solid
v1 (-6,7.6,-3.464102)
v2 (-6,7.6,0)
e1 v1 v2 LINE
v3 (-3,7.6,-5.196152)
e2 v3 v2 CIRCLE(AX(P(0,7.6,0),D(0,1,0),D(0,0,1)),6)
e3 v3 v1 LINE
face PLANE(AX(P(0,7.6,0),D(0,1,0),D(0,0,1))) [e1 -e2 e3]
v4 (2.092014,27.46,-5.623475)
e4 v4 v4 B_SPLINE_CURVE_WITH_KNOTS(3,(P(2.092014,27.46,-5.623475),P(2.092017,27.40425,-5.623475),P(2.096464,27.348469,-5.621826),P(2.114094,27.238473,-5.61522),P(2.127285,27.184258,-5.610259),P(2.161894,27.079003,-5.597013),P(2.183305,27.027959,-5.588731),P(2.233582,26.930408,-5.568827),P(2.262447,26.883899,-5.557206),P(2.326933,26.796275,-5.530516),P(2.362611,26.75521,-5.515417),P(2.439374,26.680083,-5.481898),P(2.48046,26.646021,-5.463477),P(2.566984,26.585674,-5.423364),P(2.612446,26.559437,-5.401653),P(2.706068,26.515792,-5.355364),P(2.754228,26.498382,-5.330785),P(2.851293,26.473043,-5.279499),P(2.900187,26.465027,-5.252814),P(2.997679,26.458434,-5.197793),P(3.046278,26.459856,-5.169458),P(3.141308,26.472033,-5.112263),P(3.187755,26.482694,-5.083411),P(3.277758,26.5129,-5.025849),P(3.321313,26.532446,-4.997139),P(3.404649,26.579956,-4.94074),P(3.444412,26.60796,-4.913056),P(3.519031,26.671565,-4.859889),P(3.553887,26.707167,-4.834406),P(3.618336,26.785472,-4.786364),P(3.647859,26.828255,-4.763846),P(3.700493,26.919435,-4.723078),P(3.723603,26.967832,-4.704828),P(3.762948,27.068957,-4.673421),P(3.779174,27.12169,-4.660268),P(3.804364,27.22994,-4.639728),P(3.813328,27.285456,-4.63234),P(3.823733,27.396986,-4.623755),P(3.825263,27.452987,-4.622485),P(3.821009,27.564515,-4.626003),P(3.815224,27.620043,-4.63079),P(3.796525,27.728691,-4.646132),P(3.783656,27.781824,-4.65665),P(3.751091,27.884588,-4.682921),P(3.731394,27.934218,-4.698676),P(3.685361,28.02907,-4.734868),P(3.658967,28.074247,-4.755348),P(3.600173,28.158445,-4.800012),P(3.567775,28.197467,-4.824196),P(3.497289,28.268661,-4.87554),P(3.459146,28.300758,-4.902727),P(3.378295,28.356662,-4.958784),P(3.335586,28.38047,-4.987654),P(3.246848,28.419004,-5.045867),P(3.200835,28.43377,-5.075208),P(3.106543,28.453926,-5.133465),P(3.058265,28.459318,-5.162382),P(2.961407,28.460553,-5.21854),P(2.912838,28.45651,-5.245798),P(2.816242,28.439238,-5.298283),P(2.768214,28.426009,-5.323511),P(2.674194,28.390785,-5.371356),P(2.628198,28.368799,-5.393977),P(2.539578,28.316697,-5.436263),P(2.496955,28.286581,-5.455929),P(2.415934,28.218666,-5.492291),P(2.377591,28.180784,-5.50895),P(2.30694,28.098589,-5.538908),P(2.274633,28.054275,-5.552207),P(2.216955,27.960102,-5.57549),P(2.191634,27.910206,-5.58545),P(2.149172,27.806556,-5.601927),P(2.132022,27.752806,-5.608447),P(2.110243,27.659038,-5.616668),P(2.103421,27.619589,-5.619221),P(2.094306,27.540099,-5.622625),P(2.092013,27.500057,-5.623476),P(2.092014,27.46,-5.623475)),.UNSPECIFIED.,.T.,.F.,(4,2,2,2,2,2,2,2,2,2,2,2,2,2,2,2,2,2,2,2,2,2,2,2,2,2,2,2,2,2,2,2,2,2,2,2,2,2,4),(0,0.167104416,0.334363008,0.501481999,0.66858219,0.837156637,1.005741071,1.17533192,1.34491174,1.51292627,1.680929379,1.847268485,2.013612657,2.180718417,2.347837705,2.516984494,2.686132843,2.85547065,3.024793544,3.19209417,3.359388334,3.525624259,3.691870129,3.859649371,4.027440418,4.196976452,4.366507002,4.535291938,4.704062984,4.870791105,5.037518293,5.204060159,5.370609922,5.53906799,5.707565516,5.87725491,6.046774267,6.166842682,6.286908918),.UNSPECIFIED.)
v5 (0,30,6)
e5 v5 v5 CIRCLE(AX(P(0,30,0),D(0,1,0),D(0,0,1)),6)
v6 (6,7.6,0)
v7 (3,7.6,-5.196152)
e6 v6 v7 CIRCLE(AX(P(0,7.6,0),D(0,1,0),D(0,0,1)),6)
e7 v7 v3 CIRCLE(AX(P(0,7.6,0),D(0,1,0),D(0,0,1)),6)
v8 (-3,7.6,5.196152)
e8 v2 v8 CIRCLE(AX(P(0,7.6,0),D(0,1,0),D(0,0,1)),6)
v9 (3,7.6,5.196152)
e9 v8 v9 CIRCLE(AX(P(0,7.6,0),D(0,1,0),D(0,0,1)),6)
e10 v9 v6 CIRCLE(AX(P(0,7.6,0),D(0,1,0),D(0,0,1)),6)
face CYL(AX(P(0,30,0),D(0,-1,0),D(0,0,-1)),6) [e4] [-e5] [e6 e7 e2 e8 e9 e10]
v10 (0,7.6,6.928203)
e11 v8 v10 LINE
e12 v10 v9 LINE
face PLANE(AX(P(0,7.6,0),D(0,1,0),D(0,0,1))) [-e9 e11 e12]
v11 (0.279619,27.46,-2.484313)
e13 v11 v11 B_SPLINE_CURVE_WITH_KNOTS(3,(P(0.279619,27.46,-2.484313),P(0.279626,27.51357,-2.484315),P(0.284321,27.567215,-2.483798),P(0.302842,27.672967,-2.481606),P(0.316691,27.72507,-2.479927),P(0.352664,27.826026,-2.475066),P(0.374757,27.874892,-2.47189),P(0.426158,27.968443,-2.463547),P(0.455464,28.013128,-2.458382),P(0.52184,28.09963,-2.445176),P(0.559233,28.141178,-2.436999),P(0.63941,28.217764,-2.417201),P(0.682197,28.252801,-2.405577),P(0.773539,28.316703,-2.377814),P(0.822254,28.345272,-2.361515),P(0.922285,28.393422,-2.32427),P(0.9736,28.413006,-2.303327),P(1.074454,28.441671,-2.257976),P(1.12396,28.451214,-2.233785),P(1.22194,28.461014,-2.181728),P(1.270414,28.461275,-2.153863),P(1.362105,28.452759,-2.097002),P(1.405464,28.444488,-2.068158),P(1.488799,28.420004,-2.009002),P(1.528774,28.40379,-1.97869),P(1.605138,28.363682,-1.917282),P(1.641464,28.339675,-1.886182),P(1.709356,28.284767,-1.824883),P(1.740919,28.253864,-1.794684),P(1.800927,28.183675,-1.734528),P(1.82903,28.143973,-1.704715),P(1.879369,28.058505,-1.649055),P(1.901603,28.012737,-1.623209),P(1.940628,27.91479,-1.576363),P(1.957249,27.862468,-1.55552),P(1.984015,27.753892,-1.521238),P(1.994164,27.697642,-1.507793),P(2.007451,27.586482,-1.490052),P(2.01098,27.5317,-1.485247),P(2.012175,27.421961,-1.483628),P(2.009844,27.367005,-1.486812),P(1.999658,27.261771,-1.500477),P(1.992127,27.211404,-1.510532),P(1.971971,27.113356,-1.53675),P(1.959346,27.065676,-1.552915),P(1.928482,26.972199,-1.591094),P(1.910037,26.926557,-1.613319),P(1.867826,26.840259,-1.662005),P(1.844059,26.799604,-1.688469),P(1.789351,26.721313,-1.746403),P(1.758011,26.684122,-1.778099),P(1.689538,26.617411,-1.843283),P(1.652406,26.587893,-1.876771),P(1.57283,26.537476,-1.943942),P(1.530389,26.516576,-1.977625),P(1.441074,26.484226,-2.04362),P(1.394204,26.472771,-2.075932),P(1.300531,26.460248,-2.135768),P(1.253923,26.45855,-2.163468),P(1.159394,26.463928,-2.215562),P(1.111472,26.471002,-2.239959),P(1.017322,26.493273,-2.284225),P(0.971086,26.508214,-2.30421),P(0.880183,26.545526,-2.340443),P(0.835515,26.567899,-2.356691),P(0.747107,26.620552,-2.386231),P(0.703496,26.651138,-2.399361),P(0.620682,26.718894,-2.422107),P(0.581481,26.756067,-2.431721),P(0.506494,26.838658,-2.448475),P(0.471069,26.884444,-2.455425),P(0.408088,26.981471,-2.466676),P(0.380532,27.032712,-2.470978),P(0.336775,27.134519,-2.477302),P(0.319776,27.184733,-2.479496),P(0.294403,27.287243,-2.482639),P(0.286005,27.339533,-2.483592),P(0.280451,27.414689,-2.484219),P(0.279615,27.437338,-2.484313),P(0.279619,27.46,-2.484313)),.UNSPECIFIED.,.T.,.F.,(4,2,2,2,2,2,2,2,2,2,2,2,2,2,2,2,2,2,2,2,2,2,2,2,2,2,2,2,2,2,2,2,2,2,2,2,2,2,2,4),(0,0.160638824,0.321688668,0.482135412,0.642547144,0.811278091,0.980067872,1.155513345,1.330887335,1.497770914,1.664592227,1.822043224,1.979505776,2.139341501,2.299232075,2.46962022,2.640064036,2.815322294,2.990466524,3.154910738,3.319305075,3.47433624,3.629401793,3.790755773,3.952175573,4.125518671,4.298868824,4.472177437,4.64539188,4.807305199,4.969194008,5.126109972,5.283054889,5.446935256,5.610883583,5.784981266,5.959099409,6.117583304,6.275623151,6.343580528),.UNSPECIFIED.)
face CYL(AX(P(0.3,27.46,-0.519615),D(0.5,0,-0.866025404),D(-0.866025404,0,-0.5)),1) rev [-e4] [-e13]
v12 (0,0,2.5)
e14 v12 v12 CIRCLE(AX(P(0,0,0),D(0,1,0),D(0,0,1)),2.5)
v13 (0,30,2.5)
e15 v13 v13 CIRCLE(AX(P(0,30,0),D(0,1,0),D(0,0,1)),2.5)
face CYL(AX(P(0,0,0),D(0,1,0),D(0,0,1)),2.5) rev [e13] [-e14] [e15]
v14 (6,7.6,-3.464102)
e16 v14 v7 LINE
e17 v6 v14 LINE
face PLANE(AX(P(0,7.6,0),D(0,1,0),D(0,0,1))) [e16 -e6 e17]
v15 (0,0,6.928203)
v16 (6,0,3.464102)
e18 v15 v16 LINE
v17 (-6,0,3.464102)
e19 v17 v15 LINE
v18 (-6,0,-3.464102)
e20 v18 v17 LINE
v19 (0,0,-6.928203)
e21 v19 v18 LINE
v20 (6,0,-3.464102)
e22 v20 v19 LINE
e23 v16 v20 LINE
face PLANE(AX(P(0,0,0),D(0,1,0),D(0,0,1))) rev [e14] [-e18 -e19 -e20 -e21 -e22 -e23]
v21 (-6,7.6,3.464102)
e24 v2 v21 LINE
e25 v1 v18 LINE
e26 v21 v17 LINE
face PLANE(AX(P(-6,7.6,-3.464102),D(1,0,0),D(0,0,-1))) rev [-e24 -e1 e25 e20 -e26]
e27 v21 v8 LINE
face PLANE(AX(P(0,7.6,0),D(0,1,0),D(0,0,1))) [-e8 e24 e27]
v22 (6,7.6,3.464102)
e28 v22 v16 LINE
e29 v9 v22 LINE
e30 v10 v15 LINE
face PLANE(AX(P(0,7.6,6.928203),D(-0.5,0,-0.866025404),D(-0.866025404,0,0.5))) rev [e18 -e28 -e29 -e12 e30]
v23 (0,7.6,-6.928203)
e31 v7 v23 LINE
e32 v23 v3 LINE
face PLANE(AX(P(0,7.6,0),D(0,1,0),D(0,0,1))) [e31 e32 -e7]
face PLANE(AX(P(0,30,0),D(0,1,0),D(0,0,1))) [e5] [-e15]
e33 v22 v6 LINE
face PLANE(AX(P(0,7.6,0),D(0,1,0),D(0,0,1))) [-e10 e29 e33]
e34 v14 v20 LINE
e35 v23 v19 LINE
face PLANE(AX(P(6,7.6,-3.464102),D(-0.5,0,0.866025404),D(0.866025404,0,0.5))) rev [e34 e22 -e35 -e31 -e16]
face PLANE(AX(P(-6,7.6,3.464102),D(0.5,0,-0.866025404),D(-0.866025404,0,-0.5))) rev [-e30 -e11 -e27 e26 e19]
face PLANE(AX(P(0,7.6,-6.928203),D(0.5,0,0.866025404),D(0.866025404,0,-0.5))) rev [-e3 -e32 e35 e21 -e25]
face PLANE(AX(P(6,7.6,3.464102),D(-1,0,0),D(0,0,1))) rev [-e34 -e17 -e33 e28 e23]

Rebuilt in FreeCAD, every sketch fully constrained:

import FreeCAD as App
import Part
import Sketcher
Q = App.Units.Quantity


def add_polygon(sketch, points):
    """Adds a closed chain of lines whose ends are joined by coincident constraints."""
    first, n = sketch.GeometryCount, len(points)
    for a, b in zip(points, points[1:] + points[:1]):
        sketch.addGeometry(Part.LineSegment(App.Vector(*a, 0), App.Vector(*b, 0)), False)
    for i in range(n):
        sketch.addConstraint(Sketcher.Constraint("Coincident", first + i, 2, first + (i + 1) % n, 1))

doc = App.newDocument("Part")
body = doc.addObject("PartDesign::Body", "Body")

# Sketch on XZ plane
sketch1 = doc.addObject("Sketcher::SketchObject", "Sketch")
body.addObject(sketch1)
sketch1.AttachmentSupport = (doc.XZ_Plane, [""])
sketch1.MapMode = "FlatFace"
add_polygon(sketch1, [(0, 7), (6, 3), (6, -3), (0, -7), (-6, -3), (-6, 3)])  # lines 0-5
sketch1.addConstraint([
    Sketcher.Constraint("Vertical", 1),
    Sketcher.Constraint("Vertical", 4),
    Sketcher.Constraint("Symmetric", 0, 2, 3, 2, -1, 1),
    Sketcher.Constraint("Symmetric", 2, 2, 5, 2, -1, 1),
    Sketcher.Constraint("PointOnObject", 2, 2, -2),
    Sketcher.Constraint("Parallel", 2, 5),
    Sketcher.Constraint("Horizontal", 1, 2, 3, 2),
    Sketcher.Constraint("Angle", 0, Q("-30 deg")),
    Sketcher.Constraint("DistanceX", -1, 1, 0, 2, Q("6 mm")),
    Sketcher.Constraint("DistanceY", -1, 1, 0, 2, Q("3.464102 mm")),
])
pad1 = doc.addObject("PartDesign::Pad", "Pad")
body.addObject(pad1)
pad1.Profile = sketch1
pad1.Length = 7.6
pad1.Reversed = True

# Sketch on XZ plane
sketch2 = doc.addObject("Sketcher::SketchObject", "Sketch001")
body.addObject(sketch2)
sketch2.AttachmentSupport = (doc.XZ_Plane, [""])
sketch2.MapMode = "FlatFace"
sketch2.AttachmentOffset = App.Placement(App.Vector(0, 0, -7.6), App.Rotation())
sketch2.addGeometry(Part.Circle(App.Vector(0, 0, 0), App.Vector(0, 0, 1), 6), False)
sketch2.addConstraint([
    Sketcher.Constraint("Coincident", 0, 3, -1, 1),
    Sketcher.Constraint("Diameter", 0, Q("12 mm")),
])
pad2 = doc.addObject("PartDesign::Pad", "Pad001")
body.addObject(pad2)
pad2.Profile = sketch2
pad2.Length = 22.4
pad2.Reversed = True

# Sketch on XZ plane
sketch3 = doc.addObject("Sketcher::SketchObject", "Sketch002")
body.addObject(sketch3)
sketch3.AttachmentSupport = (doc.XZ_Plane, [""])
sketch3.MapMode = "FlatFace"
sketch3.AttachmentOffset = App.Placement(App.Vector(0, 0, -30), App.Rotation())
sketch3.addGeometry(Part.Circle(App.Vector(0, 0, 0), App.Vector(0, 0, 1), 2.5), False)
sketch3.addConstraint([
    Sketcher.Constraint("Coincident", 0, 3, -1, 1),
    Sketcher.Constraint("Diameter", 0, Q("5 mm")),
])
pocket1 = doc.addObject("PartDesign::Pocket", "Pocket")
body.addObject(pocket1)
pocket1.Profile = sketch3
pocket1.Type = "ThroughAll"
pocket1.Reversed = True

# Sketch on an angled plane
sketch4 = doc.addObject("Sketcher::SketchObject", "Sketch003")
body.addObject(sketch4)
sketch4.Placement = App.Placement(App.Vector(8, 0, -13.856406), App.Rotation(App.Vector(-0.866025404, 0, -0.5), App.Vector(0, 1, 0), App.Vector(0.5, 0, -0.866025404), "ZXY"))
sketch4.addGeometry(Part.Circle(App.Vector(0, 27.5, 0), App.Vector(0, 0, 1), 1), False)
sketch4.addConstraint([
    Sketcher.Constraint("PointOnObject", 0, 3, -2),
    Sketcher.Constraint("Diameter", 0, Q("2 mm")),
    Sketcher.Constraint("DistanceY", -1, 1, 0, 3, Q("27.46 mm")),
])
pocket2 = doc.addObject("PartDesign::Pocket", "Pocket001")
body.addObject(pocket2)
pocket2.Profile = sketch4
pocket2.Length = 15.4

doc.recompute()
